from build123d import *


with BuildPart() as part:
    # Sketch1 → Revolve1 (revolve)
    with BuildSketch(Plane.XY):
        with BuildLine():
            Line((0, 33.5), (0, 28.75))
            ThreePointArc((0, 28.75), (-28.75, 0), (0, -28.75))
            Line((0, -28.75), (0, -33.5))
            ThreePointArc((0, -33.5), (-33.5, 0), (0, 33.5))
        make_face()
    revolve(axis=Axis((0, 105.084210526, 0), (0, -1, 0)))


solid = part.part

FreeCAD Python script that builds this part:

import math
import FreeCAD as App
import Part
import Sketcher
from FreeCAD import Vector

doc = App.newDocument("Part")
body = doc.addObject("PartDesign::Body", "Body")

# Sketch on XY plane
sketch1 = body.newObject("Sketcher::SketchObject", "Sketch")
sketch1.AttachmentSupport = (doc.getObject("XY_Plane"), [""])
sketch1.MapMode = "FlatFace"
sketch1.addGeometry([
    Part.LineSegment(Vector(0, 28.8, 0), Vector(0, 33.5, 0)),
    Part.ArcOfCircle(Part.Circle(Vector(0, 0, 0), Vector(0, 0, 1), 33.5), math.radians(90), math.radians(270)),
    Part.LineSegment(Vector(0, -33.5, 0), Vector(0, -28.8, 0)),
    Part.ArcOfCircle(Part.Circle(Vector(0, 0, 0), Vector(0, 0, 1), 28.8), math.radians(90), math.radians(270)),
], False)
sketch1.addConstraint([
    Sketcher.Constraint("Coincident", 0, 2, 1, 1),
    Sketcher.Constraint("Coincident", 1, 2, 2, 1),
    Sketcher.Constraint("Coincident", 2, 2, 3, 2),
    Sketcher.Constraint("Coincident", 3, 1, 0, 1),
    Sketcher.Constraint("Vertical", 0),
    Sketcher.Constraint("Vertical", 2),
    Sketcher.Constraint("Coincident", 1, 3, -1, 1),
    Sketcher.Constraint("Coincident", 3, 3, -1, 1),
    Sketcher.Constraint("PointOnObject", 0, 2, -2),
    Sketcher.Constraint("PointOnObject", 1, 2, -2),
    Sketcher.Constraint("Radius", 1, 33.5),
    Sketcher.Constraint("Radius", 3, 28.75),
])
revolution = body.newObject("PartDesign::Revolution", "Revolution")
revolution.Profile = sketch1
revolution.ReferenceAxis = (sketch1, ["V_Axis"])
revolution.Angle = 360

doc.recompute()
